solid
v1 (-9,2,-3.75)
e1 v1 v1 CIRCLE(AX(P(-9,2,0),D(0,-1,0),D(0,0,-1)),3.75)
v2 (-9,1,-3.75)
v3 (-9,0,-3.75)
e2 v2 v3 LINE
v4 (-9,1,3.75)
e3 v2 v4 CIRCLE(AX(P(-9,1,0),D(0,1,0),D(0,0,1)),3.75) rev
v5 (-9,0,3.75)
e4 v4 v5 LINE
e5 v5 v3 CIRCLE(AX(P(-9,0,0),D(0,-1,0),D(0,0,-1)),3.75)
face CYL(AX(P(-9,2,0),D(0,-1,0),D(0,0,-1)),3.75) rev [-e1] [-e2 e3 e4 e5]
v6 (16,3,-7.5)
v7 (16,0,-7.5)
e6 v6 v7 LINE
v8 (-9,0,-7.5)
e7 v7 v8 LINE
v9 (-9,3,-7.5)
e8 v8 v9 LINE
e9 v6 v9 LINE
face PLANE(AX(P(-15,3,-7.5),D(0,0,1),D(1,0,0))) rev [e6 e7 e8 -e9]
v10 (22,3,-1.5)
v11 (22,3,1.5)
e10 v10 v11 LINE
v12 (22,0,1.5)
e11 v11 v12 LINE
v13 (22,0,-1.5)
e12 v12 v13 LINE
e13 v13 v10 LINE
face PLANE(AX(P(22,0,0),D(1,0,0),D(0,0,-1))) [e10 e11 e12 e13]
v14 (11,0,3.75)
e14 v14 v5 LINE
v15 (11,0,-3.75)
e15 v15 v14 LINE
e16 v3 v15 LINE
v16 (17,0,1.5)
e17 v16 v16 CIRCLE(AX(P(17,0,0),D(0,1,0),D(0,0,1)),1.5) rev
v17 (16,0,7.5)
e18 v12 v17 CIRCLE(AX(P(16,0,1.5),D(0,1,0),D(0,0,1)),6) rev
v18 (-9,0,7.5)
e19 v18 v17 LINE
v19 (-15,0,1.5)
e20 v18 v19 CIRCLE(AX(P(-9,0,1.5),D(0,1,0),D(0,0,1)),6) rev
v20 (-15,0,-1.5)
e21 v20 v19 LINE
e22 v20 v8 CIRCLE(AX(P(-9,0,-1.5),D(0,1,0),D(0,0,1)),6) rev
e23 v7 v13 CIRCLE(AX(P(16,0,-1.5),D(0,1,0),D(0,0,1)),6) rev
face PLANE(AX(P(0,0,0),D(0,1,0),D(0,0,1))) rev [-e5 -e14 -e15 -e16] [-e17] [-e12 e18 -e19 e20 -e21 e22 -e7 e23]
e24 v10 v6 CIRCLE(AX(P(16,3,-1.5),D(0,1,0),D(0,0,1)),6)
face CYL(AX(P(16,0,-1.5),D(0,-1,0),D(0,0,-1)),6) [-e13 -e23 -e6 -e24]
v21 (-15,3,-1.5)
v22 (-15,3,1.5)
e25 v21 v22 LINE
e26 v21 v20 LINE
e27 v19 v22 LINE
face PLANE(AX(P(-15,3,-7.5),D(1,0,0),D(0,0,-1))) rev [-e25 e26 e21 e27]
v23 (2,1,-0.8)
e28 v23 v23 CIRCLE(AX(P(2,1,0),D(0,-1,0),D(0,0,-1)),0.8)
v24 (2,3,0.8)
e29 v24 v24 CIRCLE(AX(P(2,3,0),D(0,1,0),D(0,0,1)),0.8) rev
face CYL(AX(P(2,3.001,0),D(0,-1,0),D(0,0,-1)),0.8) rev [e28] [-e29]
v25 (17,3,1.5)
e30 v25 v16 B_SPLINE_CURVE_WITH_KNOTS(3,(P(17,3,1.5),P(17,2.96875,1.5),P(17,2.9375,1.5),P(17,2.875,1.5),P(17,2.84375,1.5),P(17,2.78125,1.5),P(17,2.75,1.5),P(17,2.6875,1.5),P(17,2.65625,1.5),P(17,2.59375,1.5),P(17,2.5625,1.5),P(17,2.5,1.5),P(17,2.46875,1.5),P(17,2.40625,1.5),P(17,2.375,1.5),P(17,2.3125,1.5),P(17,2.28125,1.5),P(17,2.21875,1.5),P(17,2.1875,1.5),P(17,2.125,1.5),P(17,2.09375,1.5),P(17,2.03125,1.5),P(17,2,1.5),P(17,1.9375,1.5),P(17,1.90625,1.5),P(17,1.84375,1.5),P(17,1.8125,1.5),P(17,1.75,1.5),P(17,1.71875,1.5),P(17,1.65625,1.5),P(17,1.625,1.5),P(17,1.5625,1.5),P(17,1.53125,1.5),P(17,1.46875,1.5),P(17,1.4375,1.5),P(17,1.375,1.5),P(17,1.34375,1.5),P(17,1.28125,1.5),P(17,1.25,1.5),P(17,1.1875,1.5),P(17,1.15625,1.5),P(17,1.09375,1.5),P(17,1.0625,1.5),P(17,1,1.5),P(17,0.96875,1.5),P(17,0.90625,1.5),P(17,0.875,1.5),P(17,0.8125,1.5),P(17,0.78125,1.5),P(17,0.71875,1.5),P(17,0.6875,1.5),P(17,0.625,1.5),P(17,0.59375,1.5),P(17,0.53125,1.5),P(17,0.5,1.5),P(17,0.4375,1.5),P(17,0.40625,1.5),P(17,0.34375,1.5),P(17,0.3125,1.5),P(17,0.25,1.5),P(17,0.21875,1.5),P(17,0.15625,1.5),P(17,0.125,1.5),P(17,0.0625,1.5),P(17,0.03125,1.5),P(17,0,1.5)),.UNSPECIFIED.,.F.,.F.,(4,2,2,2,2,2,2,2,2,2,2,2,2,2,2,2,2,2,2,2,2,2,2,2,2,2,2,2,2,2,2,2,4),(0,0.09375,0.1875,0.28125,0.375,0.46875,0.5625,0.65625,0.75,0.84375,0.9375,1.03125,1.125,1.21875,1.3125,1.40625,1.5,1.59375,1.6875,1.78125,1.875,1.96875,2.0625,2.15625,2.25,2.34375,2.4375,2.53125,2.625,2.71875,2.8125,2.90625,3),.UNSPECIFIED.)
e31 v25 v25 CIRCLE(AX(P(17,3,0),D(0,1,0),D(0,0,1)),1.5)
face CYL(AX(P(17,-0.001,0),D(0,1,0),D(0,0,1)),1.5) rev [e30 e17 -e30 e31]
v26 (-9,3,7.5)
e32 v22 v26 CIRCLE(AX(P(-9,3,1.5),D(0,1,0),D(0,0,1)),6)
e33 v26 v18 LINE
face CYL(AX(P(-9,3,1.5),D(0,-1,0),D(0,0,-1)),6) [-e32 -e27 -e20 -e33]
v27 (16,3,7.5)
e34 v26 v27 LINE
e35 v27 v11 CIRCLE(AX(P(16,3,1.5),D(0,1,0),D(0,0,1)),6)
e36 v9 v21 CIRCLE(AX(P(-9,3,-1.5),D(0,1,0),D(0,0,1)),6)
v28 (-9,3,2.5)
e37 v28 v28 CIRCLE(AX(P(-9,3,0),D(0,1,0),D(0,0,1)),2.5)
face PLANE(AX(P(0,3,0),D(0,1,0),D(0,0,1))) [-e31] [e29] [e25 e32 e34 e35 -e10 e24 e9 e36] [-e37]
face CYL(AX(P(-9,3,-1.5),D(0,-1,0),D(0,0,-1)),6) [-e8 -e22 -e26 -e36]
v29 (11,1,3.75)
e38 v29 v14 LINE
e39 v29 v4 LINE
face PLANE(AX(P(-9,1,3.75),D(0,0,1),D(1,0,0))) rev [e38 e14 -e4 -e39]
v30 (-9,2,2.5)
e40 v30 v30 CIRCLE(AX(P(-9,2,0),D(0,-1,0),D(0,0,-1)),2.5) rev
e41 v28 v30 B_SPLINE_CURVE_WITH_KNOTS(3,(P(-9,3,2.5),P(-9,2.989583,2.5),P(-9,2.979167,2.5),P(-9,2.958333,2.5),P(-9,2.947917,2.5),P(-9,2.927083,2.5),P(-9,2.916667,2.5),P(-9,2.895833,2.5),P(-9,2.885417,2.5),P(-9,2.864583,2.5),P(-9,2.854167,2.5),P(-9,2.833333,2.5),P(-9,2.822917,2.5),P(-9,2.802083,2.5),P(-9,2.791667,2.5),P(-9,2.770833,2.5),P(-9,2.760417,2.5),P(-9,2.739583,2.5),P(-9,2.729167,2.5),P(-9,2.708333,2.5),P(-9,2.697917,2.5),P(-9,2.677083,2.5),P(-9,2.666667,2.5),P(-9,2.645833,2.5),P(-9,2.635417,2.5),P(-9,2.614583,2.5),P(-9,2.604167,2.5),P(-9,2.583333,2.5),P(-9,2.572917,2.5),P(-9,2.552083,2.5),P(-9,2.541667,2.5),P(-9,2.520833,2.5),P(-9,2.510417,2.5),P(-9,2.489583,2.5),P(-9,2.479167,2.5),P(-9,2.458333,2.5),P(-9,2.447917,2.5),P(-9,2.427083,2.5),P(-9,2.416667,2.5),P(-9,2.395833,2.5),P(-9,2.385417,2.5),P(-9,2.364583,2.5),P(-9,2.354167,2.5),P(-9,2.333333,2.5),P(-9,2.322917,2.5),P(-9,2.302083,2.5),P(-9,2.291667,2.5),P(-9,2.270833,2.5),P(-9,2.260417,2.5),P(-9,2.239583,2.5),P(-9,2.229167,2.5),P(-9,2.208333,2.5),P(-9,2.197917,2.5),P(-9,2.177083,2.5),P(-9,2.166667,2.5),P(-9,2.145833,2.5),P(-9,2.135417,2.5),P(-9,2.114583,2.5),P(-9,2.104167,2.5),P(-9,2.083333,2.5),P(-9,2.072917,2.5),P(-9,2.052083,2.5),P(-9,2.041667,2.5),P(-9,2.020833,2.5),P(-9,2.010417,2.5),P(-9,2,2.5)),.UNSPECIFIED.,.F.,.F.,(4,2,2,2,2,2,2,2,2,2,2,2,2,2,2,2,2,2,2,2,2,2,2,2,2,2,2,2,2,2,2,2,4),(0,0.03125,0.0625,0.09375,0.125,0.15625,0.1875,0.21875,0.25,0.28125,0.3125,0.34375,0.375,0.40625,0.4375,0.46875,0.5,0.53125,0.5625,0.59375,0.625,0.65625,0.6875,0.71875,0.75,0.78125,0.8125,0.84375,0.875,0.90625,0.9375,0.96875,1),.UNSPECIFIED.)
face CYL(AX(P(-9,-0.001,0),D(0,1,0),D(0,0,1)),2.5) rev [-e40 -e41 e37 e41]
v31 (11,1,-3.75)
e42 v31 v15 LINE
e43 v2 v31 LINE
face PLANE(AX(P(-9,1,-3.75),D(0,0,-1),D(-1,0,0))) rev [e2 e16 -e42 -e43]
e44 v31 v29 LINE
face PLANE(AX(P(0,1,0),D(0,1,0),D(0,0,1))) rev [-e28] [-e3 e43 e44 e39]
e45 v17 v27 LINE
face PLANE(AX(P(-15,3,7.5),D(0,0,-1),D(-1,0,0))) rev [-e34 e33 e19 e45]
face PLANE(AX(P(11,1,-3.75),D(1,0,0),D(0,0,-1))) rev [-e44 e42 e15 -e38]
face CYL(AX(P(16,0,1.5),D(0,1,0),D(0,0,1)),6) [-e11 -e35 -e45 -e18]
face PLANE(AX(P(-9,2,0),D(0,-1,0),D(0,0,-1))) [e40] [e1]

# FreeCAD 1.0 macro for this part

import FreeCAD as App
import Part
import Sketcher
from FreeCAD import Vector
Q = App.Units.Quantity


def edges_at(feature, points):
    """Names of the edges that pass closest to the given points."""
    edges = feature.Shape.Edges
    near = lambda p: min(range(len(edges)), key=lambda i: edges[i].distToShape(Part.Vertex(*p))[0])
    return sorted({f"Edge{near(p) + 1}" for p in points})


def add_polygon(sketch, points):
    """Adds a closed chain of lines whose ends are joined by coincident constraints."""
    first, n = sketch.GeometryCount, len(points)
    for a, b in zip(points, points[1:] + points[:1]):
        sketch.addGeometry(Part.LineSegment(App.Vector(*a, 0), App.Vector(*b, 0)), False)
    for i in range(n):
        sketch.addConstraint(Sketcher.Constraint("Coincident", first + i, 2, first + (i + 1) % n, 1))

doc = App.newDocument("Part")
params = doc.addObject("Spreadsheet::Sheet", "Params")
for row, (alias, value) in enumerate([
    ("sketch1_width", "30 mm"),
    ("sketch1_height", "15 mm"),
    ("pad1_length", "3 mm"),
    ("sketch2_diameter", "5 mm"),
    ("fillet_radius", "6 mm"),
    ("sketch3_width", "12 mm"),
    ("sketch3_height", "3 mm"),
    ("pad2_length", "10 mm"),
    ("sketch4_diameter", "7.5 mm"),
    ("pocket2_length", "2 mm"),
    ("sketch5_width", "20 mm"),
    ("sketch5_height", "7.5 mm"),
    ("pocket3_length", "1 mm"),
    ("sketch6_diameter", "1.6 mm"),
    ("sketch7_width", "12 mm"),
    ("sketch7_height", "10 mm"),
    ("sketch8_width", "3 mm"),
    ("sketch8_height", "15 mm"),
    ("pad3_length", "7 mm"),
    ("sketch9_diameter", "3 mm"),
    ("fillet2_radius", "6 mm"),
], start=1):
    params.set(f"A{row}", alias)
    params.set(f"B{row}", "=" + value)
    params.setAlias(f"B{row}", alias)

body = doc.addObject("PartDesign::Body", "Body")

sketch1 = body.newObject("Sketcher::SketchObject", "Sketch")
sketch1.AttachmentSupport = (doc.getObject("XZ_Plane"), [""])
sketch1.MapMode = "FlatFace"
add_polygon(sketch1, [(-15, -8), (-15, 8), (15, 8), (15, -8)])
sketch1.addConstraint(Sketcher.Constraint("Vertical", 0))
sketch1.addConstraint(Sketcher.Constraint("Horizontal", 1))
sketch1.addConstraint(Sketcher.Constraint("Vertical", 2))
sketch1.addConstraint(Sketcher.Constraint("Horizontal", 3))
sketch1.addConstraint(Sketcher.Constraint("Symmetric", 0, 2, 2, 2, -1, 1))
sketch1.addConstraint(Sketcher.Constraint("DistanceX", 1, 1, 1, 2, Q("30 mm")))
sketch1.addConstraint(Sketcher.Constraint("DistanceY", 0, 1, 0, 2, Q("15 mm")))
sketch1.setExpression("Constraints[9]", "Params.sketch1_width")
sketch1.setExpression("Constraints[10]", "Params.sketch1_height")
pad1 = body.newObject("PartDesign::Pad", "Pad")
pad1.Profile = sketch1
pad1.setExpression("Length", "Params.pad1_length")
pad1.Reversed = True

sketch2 = body.newObject("Sketcher::SketchObject", "Sketch001")
sketch2.AttachmentSupport = (doc.getObject("XZ_Plane"), [""])
sketch2.MapMode = "FlatFace"
sketch2.AttachmentOffset = App.Placement(Vector(0, 0, -3), App.Rotation())
sketch2.addGeometry(Part.Circle(Vector(-9, 0, 0), Vector(0, 0, 1), 2.5), False)
sketch2.addConstraint(Sketcher.Constraint("PointOnObject", 0, 3, -1))
sketch2.addConstraint(Sketcher.Constraint("Diameter", 0, Q("5 mm")))
sketch2.addConstraint(Sketcher.Constraint("DistanceX", 0, 3, -1, 1, Q("9 mm")))
sketch2.setExpression("Constraints[1]", "Params.sketch2_diameter")
pocket1 = body.newObject("PartDesign::Pocket", "Pocket")
pocket1.Profile = sketch2
pocket1.Type = "UpToFirst"
pocket1.Reversed = True
doc.recompute()

fillet = body.newObject("PartDesign::Fillet", "Fillet")
fillet.Base = (pocket1, edges_at(pocket1, [(-15, 1.5, 7.5), (-15, 1.5, -7.5)]))
fillet.setExpression("Radius", "Params.fillet_radius")

sketch3 = body.newObject("Sketcher::SketchObject", "Sketch002")
sketch3.AttachmentSupport = (doc.getObject("XY_Plane"), [""])
sketch3.MapMode = "FlatFace"
sketch3.AttachmentOffset = App.Placement(Vector(0, 0, 7.5), App.Rotation())
add_polygon(sketch3, [(3, 3), (3, 0), (15, 0), (15, 3)])
sketch3.addConstraint(Sketcher.Constraint("Vertical", 0))
sketch3.addConstraint(Sketcher.Constraint("Horizontal", 1))
sketch3.addConstraint(Sketcher.Constraint("Vertical", 2))
sketch3.addConstraint(Sketcher.Constraint("Horizontal", 3))
sketch3.addConstraint(Sketcher.Constraint("PointOnObject", 0, 2, -1))
sketch3.addConstraint(Sketcher.Constraint("DistanceX", 1, 1, 1, 2, Q("12 mm")))
sketch3.addConstraint(Sketcher.Constraint("DistanceY", 0, 2, 0, 1, Q("3 mm")))
sketch3.addConstraint(Sketcher.Constraint("DistanceX", -1, 1, 0, 2, Q("3 mm")))
sketch3.setExpression("Constraints[9]", "Params.sketch3_width")
sketch3.setExpression("Constraints[10]", "Params.sketch3_height")
pad2 = body.newObject("PartDesign::Pad", "Pad001")
pad2.Profile = sketch3
pad2.setExpression("Length", "Params.pad2_length")

sketch4 = body.newObject("Sketcher::SketchObject", "Sketch003")
sketch4.AttachmentSupport = (doc.getObject("XZ_Plane"), [""])
sketch4.MapMode = "FlatFace"
sketch4.addGeometry(Part.Circle(Vector(-9, 0, 0), Vector(0, 0, 1), 3.8), False)
sketch4.addConstraint(Sketcher.Constraint("PointOnObject", 0, 3, -1))
sketch4.addConstraint(Sketcher.Constraint("Diameter", 0, Q("7.5 mm")))
sketch4.addConstraint(Sketcher.Constraint("DistanceX", 0, 3, -1, 1, Q("9 mm")))
sketch4.setExpression("Constraints[1]", "Params.sketch4_diameter")
pocket2 = body.newObject("PartDesign::Pocket", "Pocket001")
pocket2.Profile = sketch4
pocket2.setExpression("Length", "Params.pocket2_length")

sketch5 = body.newObject("Sketcher::SketchObject", "Sketch004")
sketch5.AttachmentSupport = (doc.getObject("XZ_Plane"), [""])
sketch5.MapMode = "FlatFace"
add_polygon(sketch5, [(11, -4), (11, 4), (-9, 4), (-9, -4)])
sketch5.addConstraint(Sketcher.Constraint("Vertical", 0))
sketch5.addConstraint(Sketcher.Constraint("Horizontal", 1))
sketch5.addConstraint(Sketcher.Constraint("Vertical", 2))
sketch5.addConstraint(Sketcher.Constraint("Horizontal", 3))
sketch5.addConstraint(Sketcher.Constraint("DistanceX", 1, 2, 1, 1, Q("20 mm")))
sketch5.addConstraint(Sketcher.Constraint("DistanceY", 0, 1, 0, 2, Q("7.5 mm")))
sketch5.addConstraint(Sketcher.Constraint("DistanceX", -1, 1, 0, 2, Q("11 mm")))
sketch5.addConstraint(Sketcher.Constraint("DistanceY", -1, 1, 0, 2, Q("3.75 mm")))
sketch5.setExpression("Constraints[8]", "Params.sketch5_width")
sketch5.setExpression("Constraints[9]", "Params.sketch5_height")
pocket3 = body.newObject("PartDesign::Pocket", "Pocket002")
pocket3.Profile = sketch5
pocket3.setExpression("Length", "Params.pocket3_length")

sketch6 = body.newObject("Sketcher::SketchObject", "Sketch005")
sketch6.AttachmentSupport = (doc.getObject("XZ_Plane"), [""])
sketch6.MapMode = "FlatFace"
sketch6.AttachmentOffset = App.Placement(Vector(0, 0, -1), App.Rotation())
sketch6.addGeometry(Part.Circle(Vector(2, 0, 0), Vector(0, 0, 1), 0.8), False)
sketch6.addConstraint(Sketcher.Constraint("PointOnObject", 0, 3, -1))
sketch6.addConstraint(Sketcher.Constraint("Diameter", 0, Q("1.6 mm")))
sketch6.addConstraint(Sketcher.Constraint("DistanceX", -1, 1, 0, 3, Q("2 mm")))
sketch6.setExpression("Constraints[1]", "Params.sketch6_diameter")
pocket4 = body.newObject("PartDesign::Pocket", "Pocket003")
pocket4.Profile = sketch6
pocket4.Type = "UpToFirst"

sketch7 = body.newObject("Sketcher::SketchObject", "Sketch006")
sketch7.AttachmentSupport = (doc.getObject("XZ_Plane"), [""])
sketch7.MapMode = "FlatFace"
add_polygon(sketch7, [(3, 8), (3, 18), (15, 18), (15, 8)])
sketch7.addConstraint(Sketcher.Constraint("Vertical", 0))
sketch7.addConstraint(Sketcher.Constraint("Horizontal", 1))
sketch7.addConstraint(Sketcher.Constraint("Vertical", 2))
sketch7.addConstraint(Sketcher.Constraint("Horizontal", 3))
sketch7.addConstraint(Sketcher.Constraint("DistanceX", 1, 1, 1, 2, Q("12 mm")))
sketch7.addConstraint(Sketcher.Constraint("DistanceY", 0, 1, 0, 2, Q("10 mm")))
sketch7.addConstraint(Sketcher.Constraint("DistanceX", -1, 1, 0, 2, Q("3 mm")))
sketch7.addConstraint(Sketcher.Constraint("DistanceY", -1, 1, 0, 2, Q("17.5 mm")))
sketch7.setExpression("Constraints[8]", "Params.sketch7_width")
sketch7.setExpression("Constraints[9]", "Params.sketch7_height")
pocket5 = body.newObject("PartDesign::Pocket", "Pocket004")
pocket5.Profile = sketch7
pocket5.Type = "UpToFirst"

sketch8 = body.newObject("Sketcher::SketchObject", "Sketch007")
sketch8.AttachmentSupport = (doc.getObject("YZ_Plane"), [""])
sketch8.MapMode = "FlatFace"
sketch8.AttachmentOffset = App.Placement(Vector(0, 0, 15), App.Rotation())
add_polygon(sketch8, [(3, 7.5), (0, 7.5), (0, -7.5), (3, -7.5)])
sketch8.addConstraint(Sketcher.Constraint("Horizontal", 0))
sketch8.addConstraint(Sketcher.Constraint("Vertical", 1))
sketch8.addConstraint(Sketcher.Constraint("Horizontal", 2))
sketch8.addConstraint(Sketcher.Constraint("Vertical", 3))
sketch8.addConstraint(Sketcher.Constraint("Symmetric", 0, 2, 1, 2, -1, 1))
sketch8.addConstraint(Sketcher.Constraint("DistanceX", 0, 2, 0, 1, Q("3 mm")))
sketch8.addConstraint(Sketcher.Constraint("DistanceY", 1, 2, 1, 1, Q("15 mm")))
sketch8.setExpression("Constraints[9]", "Params.sketch8_width")
sketch8.setExpression("Constraints[10]", "Params.sketch8_height")
pad3 = body.newObject("PartDesign::Pad", "Pad002")
pad3.Profile = sketch8
pad3.setExpression("Length", "Params.pad3_length")

sketch9 = body.newObject("Sketcher::SketchObject", "Sketch008")
sketch9.AttachmentSupport = (doc.getObject("XZ_Plane"), [""])
sketch9.MapMode = "FlatFace"
sketch9.AttachmentOffset = App.Placement(Vector(0, 0, -3), App.Rotation())
sketch9.addGeometry(Part.Circle(Vector(17, 0, 0), Vector(0, 0, 1), 1.5), False)
sketch9.addConstraint(Sketcher.Constraint("PointOnObject", 0, 3, -1))
sketch9.addConstraint(Sketcher.Constraint("Diameter", 0, Q("3 mm")))
sketch9.addConstraint(Sketcher.Constraint("DistanceX", -1, 1, 0, 3, Q("17 mm")))
sketch9.setExpression("Constraints[1]", "Params.sketch9_diameter")
pocket6 = body.newObject("PartDesign::Pocket", "Pocket005")
pocket6.Profile = sketch9
pocket6.Type = "UpToFirst"
pocket6.Reversed = True
doc.recompute()

fillet2 = body.newObject("PartDesign::Fillet", "Fillet001")
fillet2.Base = (pocket6, edges_at(pocket6, [(22, 1.5, -7.5), (22, 1.5, 7.5)]))
fillet2.setExpression("Radius", "Params.fillet2_radius")

doc.recompute()
